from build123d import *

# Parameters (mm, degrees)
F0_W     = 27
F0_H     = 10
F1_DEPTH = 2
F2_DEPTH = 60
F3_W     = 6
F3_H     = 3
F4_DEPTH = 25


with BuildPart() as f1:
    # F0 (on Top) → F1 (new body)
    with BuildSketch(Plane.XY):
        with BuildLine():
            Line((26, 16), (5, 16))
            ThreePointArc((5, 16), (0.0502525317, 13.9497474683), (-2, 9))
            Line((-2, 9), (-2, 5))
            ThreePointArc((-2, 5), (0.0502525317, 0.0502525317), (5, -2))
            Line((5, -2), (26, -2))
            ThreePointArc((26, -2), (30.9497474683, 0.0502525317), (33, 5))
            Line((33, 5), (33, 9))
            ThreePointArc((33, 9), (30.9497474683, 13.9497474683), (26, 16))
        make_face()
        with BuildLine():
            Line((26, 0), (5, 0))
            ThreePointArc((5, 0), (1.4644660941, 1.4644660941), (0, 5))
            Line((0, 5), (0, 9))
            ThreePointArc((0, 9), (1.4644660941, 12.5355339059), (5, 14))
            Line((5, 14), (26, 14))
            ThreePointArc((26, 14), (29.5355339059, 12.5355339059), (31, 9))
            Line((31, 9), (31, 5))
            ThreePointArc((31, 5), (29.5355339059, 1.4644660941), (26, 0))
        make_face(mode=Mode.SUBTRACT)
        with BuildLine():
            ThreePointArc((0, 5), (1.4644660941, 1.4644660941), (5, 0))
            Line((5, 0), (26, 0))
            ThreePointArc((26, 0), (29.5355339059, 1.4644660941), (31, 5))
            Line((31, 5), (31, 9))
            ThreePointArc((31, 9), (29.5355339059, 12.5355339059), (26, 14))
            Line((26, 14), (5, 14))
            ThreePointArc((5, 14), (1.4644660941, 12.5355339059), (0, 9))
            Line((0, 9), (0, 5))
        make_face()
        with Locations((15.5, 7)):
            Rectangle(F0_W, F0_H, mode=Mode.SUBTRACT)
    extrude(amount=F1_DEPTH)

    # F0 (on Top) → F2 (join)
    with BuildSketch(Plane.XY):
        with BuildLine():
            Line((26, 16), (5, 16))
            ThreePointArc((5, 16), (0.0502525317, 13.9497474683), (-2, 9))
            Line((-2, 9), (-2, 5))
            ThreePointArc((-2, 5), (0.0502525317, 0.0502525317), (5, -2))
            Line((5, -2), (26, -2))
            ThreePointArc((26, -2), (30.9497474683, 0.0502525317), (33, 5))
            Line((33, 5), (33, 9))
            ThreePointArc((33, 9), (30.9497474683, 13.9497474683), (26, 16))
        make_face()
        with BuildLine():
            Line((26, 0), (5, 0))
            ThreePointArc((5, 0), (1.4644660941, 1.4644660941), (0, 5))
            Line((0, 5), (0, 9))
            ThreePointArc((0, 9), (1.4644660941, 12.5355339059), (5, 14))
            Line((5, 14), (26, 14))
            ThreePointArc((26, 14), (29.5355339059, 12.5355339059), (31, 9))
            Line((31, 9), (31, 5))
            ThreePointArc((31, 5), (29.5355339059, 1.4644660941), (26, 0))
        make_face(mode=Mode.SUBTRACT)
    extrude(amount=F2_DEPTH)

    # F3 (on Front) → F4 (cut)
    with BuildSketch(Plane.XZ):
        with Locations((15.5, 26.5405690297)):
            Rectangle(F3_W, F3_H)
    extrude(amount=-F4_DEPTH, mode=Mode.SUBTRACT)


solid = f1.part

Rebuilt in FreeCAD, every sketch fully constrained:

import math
import FreeCAD as App
import Part
import Sketcher

doc = App.newDocument("Part")
body = doc.addObject("PartDesign::Body", "Body")

# Sketch on XY plane
sketch1 = body.newObject("Sketcher::SketchObject", "Sketch")
sketch1.AttachmentSupport = (doc.getObject("XY_Plane"), [""])
sketch1.MapMode = "FlatFace"
sketch1.addGeometry([
    Part.LineSegment(App.Vector(26, 16, 0), App.Vector(5, 16, 0)),  # 0
    Part.ArcOfCircle(Part.Circle(App.Vector(5, 9, 0), App.Vector(0, 0, 1), 7), math.radians(90), math.radians(180)),  # 1
    Part.LineSegment(App.Vector(-2, 9, 0), App.Vector(-2, 5, 0)),  # 2
    Part.ArcOfCircle(Part.Circle(App.Vector(5, 5, 0), App.Vector(0, 0, 1), 7), math.radians(180), math.radians(270)),  # 3
    Part.LineSegment(App.Vector(5, -2, 0), App.Vector(26, -2, 0)),  # 4
    Part.ArcOfCircle(Part.Circle(App.Vector(26, 5, 0), App.Vector(0, 0, 1), 7), math.radians(-90), math.radians(0)),  # 5
    Part.LineSegment(App.Vector(33, 5, 0), App.Vector(33, 9, 0)),  # 6
    Part.ArcOfCircle(Part.Circle(App.Vector(26, 9, 0), App.Vector(0, 0, 1), 7), math.radians(0), math.radians(90)),  # 7
    Part.LineSegment(App.Vector(29, 2, 0), App.Vector(2, 2, 0)),  # 8
    Part.LineSegment(App.Vector(2, 2, 0), App.Vector(2, 12, 0)),  # 9
    Part.LineSegment(App.Vector(2, 12, 0), App.Vector(29, 12, 0)),  # 10
    Part.LineSegment(App.Vector(29, 12, 0), App.Vector(29, 2, 0)),  # 11
], False)
sketch1.addConstraint([
    Sketcher.Constraint("Tangent", 0, 2, 1, 1),
    Sketcher.Constraint("Tangent", 1, 2, 2, 1),
    Sketcher.Constraint("Tangent", 2, 2, 3, 1),
    Sketcher.Constraint("Tangent", 3, 2, 4, 1),
    Sketcher.Constraint("Tangent", 4, 2, 5, 1),
    Sketcher.Constraint("Tangent", 5, 2, 6, 1),
    Sketcher.Constraint("Tangent", 6, 2, 7, 1),
    Sketcher.Constraint("Tangent", 7, 2, 0, 1),
    Sketcher.Constraint("Coincident", 8, 2, 9, 1),
    Sketcher.Constraint("Coincident", 9, 2, 10, 1),
    Sketcher.Constraint("Coincident", 10, 2, 11, 1),
    Sketcher.Constraint("Coincident", 11, 2, 8, 1),
    Sketcher.Constraint("Horizontal", 0),
    Sketcher.Constraint("Vertical", 2),
    Sketcher.Constraint("Horizontal", 4),
    Sketcher.Constraint("Vertical", 6),
    Sketcher.Constraint("Horizontal", 8),
    Sketcher.Constraint("Vertical", 9),
    Sketcher.Constraint("Horizontal", 10),
    Sketcher.Constraint("Vertical", 11),
    Sketcher.Constraint("Equal", 1, 3),
    Sketcher.Constraint("Equal", 3, 5),
    Sketcher.Constraint("Equal", 5, 7),
    Sketcher.Constraint("Radius", 1, 7.0),
    Sketcher.Constraint("DistanceX", 0, 2, 0, 1, 21.0),
    Sketcher.Constraint("DistanceX", 8, 2, 8, 1, 27.0),
    Sketcher.Constraint("DistanceY", 2, 2, 2, 1, 4.0),
    Sketcher.Constraint("DistanceY", 9, 1, 9, 2, 10.0),
    Sketcher.Constraint("DistanceX", -1, 1, 1, 3, 5.0),
    Sketcher.Constraint("DistanceY", -1, 1, 1, 3, 9.0),
    Sketcher.Constraint("DistanceX", -1, 1, 8, 2, 2.0),
    Sketcher.Constraint("DistanceY", -1, 1, 8, 2, 2.0),
])
pad1 = body.newObject("PartDesign::Pad", "Pad")
pad1.Profile = sketch1
pad1.Length = 2

# Sketch on XY plane
sketch2 = body.newObject("Sketcher::SketchObject", "Sketch001")
sketch2.AttachmentSupport = (doc.getObject("XY_Plane"), [""])
sketch2.MapMode = "FlatFace"
sketch2.addGeometry([
    Part.LineSegment(App.Vector(26, 16, 0), App.Vector(5, 16, 0)),  # 0
    Part.ArcOfCircle(Part.Circle(App.Vector(5, 9, 0), App.Vector(0, 0, 1), 7), math.radians(90), math.radians(180)),  # 1
    Part.LineSegment(App.Vector(-2, 9, 0), App.Vector(-2, 5, 0)),  # 2
    Part.ArcOfCircle(Part.Circle(App.Vector(5, 5, 0), App.Vector(0, 0, 1), 7), math.radians(180), math.radians(270)),  # 3
    Part.LineSegment(App.Vector(5, -2, 0), App.Vector(26, -2, 0)),  # 4
    Part.ArcOfCircle(Part.Circle(App.Vector(26, 5, 0), App.Vector(0, 0, 1), 7), math.radians(-90), math.radians(0)),  # 5
    Part.LineSegment(App.Vector(33, 5, 0), App.Vector(33, 9, 0)),  # 6
    Part.ArcOfCircle(Part.Circle(App.Vector(26, 9, 0), App.Vector(0, 0, 1), 7), math.radians(0), math.radians(90)),  # 7
    Part.ArcOfCircle(Part.Circle(App.Vector(26, 5, 0), App.Vector(0, 0, 1), 5), math.radians(-90), math.radians(0)),  # 8
    Part.LineSegment(App.Vector(26, 0, 0), App.Vector(5, 0, 0)),  # 9
    Part.ArcOfCircle(Part.Circle(App.Vector(5, 5, 0), App.Vector(0, 0, 1), 5), math.radians(180), math.radians(270)),  # 10
    Part.LineSegment(App.Vector(0, 5, 0), App.Vector(0, 9, 0)),  # 11
    Part.ArcOfCircle(Part.Circle(App.Vector(5, 9, 0), App.Vector(0, 0, 1), 5), math.radians(90), math.radians(180)),  # 12
    Part.LineSegment(App.Vector(5, 14, 0), App.Vector(26, 14, 0)),  # 13
    Part.ArcOfCircle(Part.Circle(App.Vector(26, 9, 0), App.Vector(0, 0, 1), 5), math.radians(0), math.radians(90)),  # 14
    Part.LineSegment(App.Vector(31, 9, 0), App.Vector(31, 5, 0)),  # 15
], False)
sketch2.addConstraint([
    Sketcher.Constraint("Tangent", 0, 2, 1, 1),
    Sketcher.Constraint("Tangent", 1, 2, 2, 1),
    Sketcher.Constraint("Tangent", 2, 2, 3, 1),
    Sketcher.Constraint("Tangent", 3, 2, 4, 1),
    Sketcher.Constraint("Tangent", 4, 2, 5, 1),
    Sketcher.Constraint("Tangent", 5, 2, 6, 1),
    Sketcher.Constraint("Tangent", 6, 2, 7, 1),
    Sketcher.Constraint("Tangent", 7, 2, 0, 1),
    Sketcher.Constraint("Tangent", 8, 1, 9, 1),
    Sketcher.Constraint("Tangent", 9, 2, 10, 2),
    Sketcher.Constraint("Tangent", 10, 1, 11, 1),
    Sketcher.Constraint("Tangent", 11, 2, 12, 2),
    Sketcher.Constraint("Tangent", 12, 1, 13, 1),
    Sketcher.Constraint("Tangent", 13, 2, 14, 2),
    Sketcher.Constraint("Tangent", 14, 1, 15, 1),
    Sketcher.Constraint("Tangent", 15, 2, 8, 2),
    Sketcher.Constraint("Horizontal", 0),
    Sketcher.Constraint("Vertical", 2),
    Sketcher.Constraint("Horizontal", 4),
    Sketcher.Constraint("Vertical", 6),
    Sketcher.Constraint("Horizontal", 9),
    Sketcher.Constraint("Vertical", 11),
    Sketcher.Constraint("Horizontal", 13),
    Sketcher.Constraint("Vertical", 15),
    Sketcher.Constraint("Coincident", 8, 3, 5, 3),
    Sketcher.Constraint("Coincident", 10, 3, 3, 3),
    Sketcher.Constraint("Coincident", 12, 3, 1, 3),
    Sketcher.Constraint("Equal", 1, 3),
    Sketcher.Constraint("Equal", 3, 5),
    Sketcher.Constraint("Equal", 5, 7),
    Sketcher.Constraint("Equal", 12, 14),
    Sketcher.Constraint("PointOnObject", 8, 1, -1),
    Sketcher.Constraint("PointOnObject", 10, 1, -2),
    Sketcher.Constraint("Radius", 1, 7.0),
    Sketcher.Constraint("Radius", 8, 5.0),
    Sketcher.Constraint("DistanceX", 0, 2, 0, 1, 21.0),
    Sketcher.Constraint("DistanceY", 2, 2, 2, 1, 4.0),
])
pad2 = body.newObject("PartDesign::Pad", "Pad001")
pad2.Profile = sketch2
pad2.Length = 60

# Sketch on XZ plane
sketch3 = body.newObject("Sketcher::SketchObject", "Sketch002")
sketch3.AttachmentSupport = (doc.getObject("XZ_Plane"), [""])
sketch3.MapMode = "FlatFace"
sketch3.addGeometry([
    Part.LineSegment(App.Vector(12.5, 28, 0), App.Vector(12.5, 25, 0)),
    Part.LineSegment(App.Vector(12.5, 25, 0), App.Vector(18.5, 25, 0)),
    Part.LineSegment(App.Vector(18.5, 25, 0), App.Vector(18.5, 28, 0)),
    Part.LineSegment(App.Vector(18.5, 28, 0), App.Vector(12.5, 28, 0)),
], False)
sketch3.addConstraint([
    Sketcher.Constraint("Coincident", 0, 2, 1, 1),
    Sketcher.Constraint("Coincident", 1, 2, 2, 1),
    Sketcher.Constraint("Coincident", 2, 2, 3, 1),
    Sketcher.Constraint("Coincident", 3, 2, 0, 1),
    Sketcher.Constraint("Vertical", 0),
    Sketcher.Constraint("Horizontal", 1),
    Sketcher.Constraint("Vertical", 2),
    Sketcher.Constraint("Horizontal", 3),
    Sketcher.Constraint("DistanceX", 1, 1, 1, 2, 6.0),
    Sketcher.Constraint("DistanceY", 0, 2, 0, 1, 3.0),
    Sketcher.Constraint("DistanceX", -1, 1, 0, 2, 12.5),
    Sketcher.Constraint("DistanceY", -1, 1, 0, 2, 25.040569),
])
pocket1 = body.newObject("PartDesign::Pocket", "Pocket")
pocket1.Profile = sketch3
pocket1.Length = 25

doc.recompute()
